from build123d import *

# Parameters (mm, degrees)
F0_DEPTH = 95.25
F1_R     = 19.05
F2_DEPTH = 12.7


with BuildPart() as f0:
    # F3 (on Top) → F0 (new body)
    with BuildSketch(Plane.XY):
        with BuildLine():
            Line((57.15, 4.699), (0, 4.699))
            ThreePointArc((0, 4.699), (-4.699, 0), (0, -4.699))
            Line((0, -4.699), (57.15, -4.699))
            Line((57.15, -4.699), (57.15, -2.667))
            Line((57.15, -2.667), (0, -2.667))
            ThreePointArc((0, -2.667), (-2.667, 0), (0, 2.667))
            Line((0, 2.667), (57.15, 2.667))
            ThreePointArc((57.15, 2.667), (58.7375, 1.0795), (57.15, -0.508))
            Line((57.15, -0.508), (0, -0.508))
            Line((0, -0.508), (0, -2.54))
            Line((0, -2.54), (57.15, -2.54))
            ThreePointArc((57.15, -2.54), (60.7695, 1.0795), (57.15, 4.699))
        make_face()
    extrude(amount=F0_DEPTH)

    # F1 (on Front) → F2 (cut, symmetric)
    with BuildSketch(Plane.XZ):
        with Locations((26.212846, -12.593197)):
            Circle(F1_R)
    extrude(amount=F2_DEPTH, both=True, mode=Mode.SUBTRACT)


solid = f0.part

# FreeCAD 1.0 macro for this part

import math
import FreeCAD as App
import Part
import Sketcher
Q = App.Units.Quantity

doc = App.newDocument("Part")
body = doc.addObject("PartDesign::Body", "Body")

# Sketch on XY plane
sketch1 = body.newObject("Sketcher::SketchObject", "Sketch")
sketch1.AttachmentSupport = (doc.getObject("XY_Plane"), [""])
sketch1.MapMode = "FlatFace"
sketch1.addGeometry(Part.LineSegment(App.Vector(57.1, 4.7, 0), App.Vector(0, 4.7, 0)), False)
sketch1.addGeometry(Part.ArcOfCircle(Part.Circle(App.Vector(0, 0, 0), App.Vector(0, 0, 1), 4.7), math.radians(90), math.radians(270)), False)
sketch1.addGeometry(Part.LineSegment(App.Vector(0, -4.7, 0), App.Vector(57.1, -4.7, 0)), False)
sketch1.addGeometry(Part.LineSegment(App.Vector(57.1, -4.7, 0), App.Vector(57.1, -2.7, 0)), False)
sketch1.addGeometry(Part.LineSegment(App.Vector(57.1, -2.7, 0), App.Vector(0, -2.7, 0)), False)
sketch1.addGeometry(Part.ArcOfCircle(Part.Circle(App.Vector(0, 0, 0), App.Vector(0, 0, 1), 2.7), math.radians(90), math.radians(270)), False)
sketch1.addGeometry(Part.LineSegment(App.Vector(0, 2.7, 0), App.Vector(57.1, 2.7, 0)), False)
sketch1.addGeometry(Part.ArcOfCircle(Part.Circle(App.Vector(57.1, 1.1, 0), App.Vector(0, 0, 1), 1.6), math.radians(-90), math.radians(90)), False)
sketch1.addGeometry(Part.LineSegment(App.Vector(57.1, -0.5, 0), App.Vector(0, -0.5, 0)), False)
sketch1.addGeometry(Part.LineSegment(App.Vector(0, -0.5, 0), App.Vector(0, -2.5, 0)), False)
sketch1.addGeometry(Part.LineSegment(App.Vector(0, -2.5, 0), App.Vector(57.1, -2.5, 0)), False)
sketch1.addGeometry(Part.ArcOfCircle(Part.Circle(App.Vector(57.1, 1.1, 0), App.Vector(0, 0, 1), 3.6), math.radians(-90), math.radians(90)), False)
sketch1.addConstraint(Sketcher.Constraint("Tangent", 0, 2, 1, 1))
sketch1.addConstraint(Sketcher.Constraint("Tangent", 1, 2, 2, 1))
sketch1.addConstraint(Sketcher.Constraint("Coincident", 2, 2, 3, 1))
sketch1.addConstraint(Sketcher.Constraint("Coincident", 3, 2, 4, 1))
sketch1.addConstraint(Sketcher.Constraint("Tangent", 4, 2, 5, 2))
sketch1.addConstraint(Sketcher.Constraint("Tangent", 5, 1, 6, 1))
sketch1.addConstraint(Sketcher.Constraint("Tangent", 6, 2, 7, 2))
sketch1.addConstraint(Sketcher.Constraint("Tangent", 7, 1, 8, 1))
sketch1.addConstraint(Sketcher.Constraint("Coincident", 8, 2, 9, 1))
sketch1.addConstraint(Sketcher.Constraint("Coincident", 9, 2, 10, 1))
sketch1.addConstraint(Sketcher.Constraint("Tangent", 10, 2, 11, 1))
sketch1.addConstraint(Sketcher.Constraint("Tangent", 11, 2, 0, 1))
sketch1.addConstraint(Sketcher.Constraint("Horizontal", 0))
sketch1.addConstraint(Sketcher.Constraint("Horizontal", 2))
sketch1.addConstraint(Sketcher.Constraint("Vertical", 3))
sketch1.addConstraint(Sketcher.Constraint("Horizontal", 4))
sketch1.addConstraint(Sketcher.Constraint("Horizontal", 6))
sketch1.addConstraint(Sketcher.Constraint("Horizontal", 8))
sketch1.addConstraint(Sketcher.Constraint("Vertical", 9))
sketch1.addConstraint(Sketcher.Constraint("Horizontal", 10))
sketch1.addConstraint(Sketcher.Constraint("Coincident", 1, 3, -1, 1))
sketch1.addConstraint(Sketcher.Constraint("Coincident", 5, 3, -1, 1))
sketch1.addConstraint(Sketcher.Constraint("Coincident", 11, 3, 7, 3))
sketch1.addConstraint(Sketcher.Constraint("PointOnObject", 8, 2, -2))
sketch1.addConstraint(Sketcher.Constraint("Vertical", 11, 3, 2, 2))
sketch1.addConstraint(Sketcher.Constraint("Radius", 1, Q("0.185 in")))
sketch1.addConstraint(Sketcher.Constraint("Radius", 5, Q("0.105 in")))
sketch1.addConstraint(Sketcher.Constraint("Radius", 7, Q("0.0625 in")))
sketch1.addConstraint(Sketcher.Constraint("DistanceX", 0, 2, 0, 1, Q("2.25 in")))
pad1 = body.newObject("PartDesign::Pad", "Pad")
pad1.Profile = sketch1
pad1.Length = Q("3.75 in")

# Sketch on XZ plane
sketch2 = body.newObject("Sketcher::SketchObject", "Sketch001")
sketch2.AttachmentSupport = (doc.getObject("XZ_Plane"), [""])
sketch2.MapMode = "FlatFace"
sketch2.addGeometry(Part.Circle(App.Vector(26, -13, 0), App.Vector(0, 0, 1), 19), False)
sketch2.addConstraint(Sketcher.Constraint("Diameter", 0, Q("1.5 in")))
sketch2.addConstraint(Sketcher.Constraint("DistanceX", -1, 1, 0, 3, 26.212846))
sketch2.addConstraint(Sketcher.Constraint("DistanceY", 0, 3, -1, 1, 12.593197))
pocket1 = body.newObject("PartDesign::Pocket", "Pocket")
pocket1.Profile = sketch2
pocket1.Length = Q("1 in")
pocket1.Midplane = True

doc.recompute()
